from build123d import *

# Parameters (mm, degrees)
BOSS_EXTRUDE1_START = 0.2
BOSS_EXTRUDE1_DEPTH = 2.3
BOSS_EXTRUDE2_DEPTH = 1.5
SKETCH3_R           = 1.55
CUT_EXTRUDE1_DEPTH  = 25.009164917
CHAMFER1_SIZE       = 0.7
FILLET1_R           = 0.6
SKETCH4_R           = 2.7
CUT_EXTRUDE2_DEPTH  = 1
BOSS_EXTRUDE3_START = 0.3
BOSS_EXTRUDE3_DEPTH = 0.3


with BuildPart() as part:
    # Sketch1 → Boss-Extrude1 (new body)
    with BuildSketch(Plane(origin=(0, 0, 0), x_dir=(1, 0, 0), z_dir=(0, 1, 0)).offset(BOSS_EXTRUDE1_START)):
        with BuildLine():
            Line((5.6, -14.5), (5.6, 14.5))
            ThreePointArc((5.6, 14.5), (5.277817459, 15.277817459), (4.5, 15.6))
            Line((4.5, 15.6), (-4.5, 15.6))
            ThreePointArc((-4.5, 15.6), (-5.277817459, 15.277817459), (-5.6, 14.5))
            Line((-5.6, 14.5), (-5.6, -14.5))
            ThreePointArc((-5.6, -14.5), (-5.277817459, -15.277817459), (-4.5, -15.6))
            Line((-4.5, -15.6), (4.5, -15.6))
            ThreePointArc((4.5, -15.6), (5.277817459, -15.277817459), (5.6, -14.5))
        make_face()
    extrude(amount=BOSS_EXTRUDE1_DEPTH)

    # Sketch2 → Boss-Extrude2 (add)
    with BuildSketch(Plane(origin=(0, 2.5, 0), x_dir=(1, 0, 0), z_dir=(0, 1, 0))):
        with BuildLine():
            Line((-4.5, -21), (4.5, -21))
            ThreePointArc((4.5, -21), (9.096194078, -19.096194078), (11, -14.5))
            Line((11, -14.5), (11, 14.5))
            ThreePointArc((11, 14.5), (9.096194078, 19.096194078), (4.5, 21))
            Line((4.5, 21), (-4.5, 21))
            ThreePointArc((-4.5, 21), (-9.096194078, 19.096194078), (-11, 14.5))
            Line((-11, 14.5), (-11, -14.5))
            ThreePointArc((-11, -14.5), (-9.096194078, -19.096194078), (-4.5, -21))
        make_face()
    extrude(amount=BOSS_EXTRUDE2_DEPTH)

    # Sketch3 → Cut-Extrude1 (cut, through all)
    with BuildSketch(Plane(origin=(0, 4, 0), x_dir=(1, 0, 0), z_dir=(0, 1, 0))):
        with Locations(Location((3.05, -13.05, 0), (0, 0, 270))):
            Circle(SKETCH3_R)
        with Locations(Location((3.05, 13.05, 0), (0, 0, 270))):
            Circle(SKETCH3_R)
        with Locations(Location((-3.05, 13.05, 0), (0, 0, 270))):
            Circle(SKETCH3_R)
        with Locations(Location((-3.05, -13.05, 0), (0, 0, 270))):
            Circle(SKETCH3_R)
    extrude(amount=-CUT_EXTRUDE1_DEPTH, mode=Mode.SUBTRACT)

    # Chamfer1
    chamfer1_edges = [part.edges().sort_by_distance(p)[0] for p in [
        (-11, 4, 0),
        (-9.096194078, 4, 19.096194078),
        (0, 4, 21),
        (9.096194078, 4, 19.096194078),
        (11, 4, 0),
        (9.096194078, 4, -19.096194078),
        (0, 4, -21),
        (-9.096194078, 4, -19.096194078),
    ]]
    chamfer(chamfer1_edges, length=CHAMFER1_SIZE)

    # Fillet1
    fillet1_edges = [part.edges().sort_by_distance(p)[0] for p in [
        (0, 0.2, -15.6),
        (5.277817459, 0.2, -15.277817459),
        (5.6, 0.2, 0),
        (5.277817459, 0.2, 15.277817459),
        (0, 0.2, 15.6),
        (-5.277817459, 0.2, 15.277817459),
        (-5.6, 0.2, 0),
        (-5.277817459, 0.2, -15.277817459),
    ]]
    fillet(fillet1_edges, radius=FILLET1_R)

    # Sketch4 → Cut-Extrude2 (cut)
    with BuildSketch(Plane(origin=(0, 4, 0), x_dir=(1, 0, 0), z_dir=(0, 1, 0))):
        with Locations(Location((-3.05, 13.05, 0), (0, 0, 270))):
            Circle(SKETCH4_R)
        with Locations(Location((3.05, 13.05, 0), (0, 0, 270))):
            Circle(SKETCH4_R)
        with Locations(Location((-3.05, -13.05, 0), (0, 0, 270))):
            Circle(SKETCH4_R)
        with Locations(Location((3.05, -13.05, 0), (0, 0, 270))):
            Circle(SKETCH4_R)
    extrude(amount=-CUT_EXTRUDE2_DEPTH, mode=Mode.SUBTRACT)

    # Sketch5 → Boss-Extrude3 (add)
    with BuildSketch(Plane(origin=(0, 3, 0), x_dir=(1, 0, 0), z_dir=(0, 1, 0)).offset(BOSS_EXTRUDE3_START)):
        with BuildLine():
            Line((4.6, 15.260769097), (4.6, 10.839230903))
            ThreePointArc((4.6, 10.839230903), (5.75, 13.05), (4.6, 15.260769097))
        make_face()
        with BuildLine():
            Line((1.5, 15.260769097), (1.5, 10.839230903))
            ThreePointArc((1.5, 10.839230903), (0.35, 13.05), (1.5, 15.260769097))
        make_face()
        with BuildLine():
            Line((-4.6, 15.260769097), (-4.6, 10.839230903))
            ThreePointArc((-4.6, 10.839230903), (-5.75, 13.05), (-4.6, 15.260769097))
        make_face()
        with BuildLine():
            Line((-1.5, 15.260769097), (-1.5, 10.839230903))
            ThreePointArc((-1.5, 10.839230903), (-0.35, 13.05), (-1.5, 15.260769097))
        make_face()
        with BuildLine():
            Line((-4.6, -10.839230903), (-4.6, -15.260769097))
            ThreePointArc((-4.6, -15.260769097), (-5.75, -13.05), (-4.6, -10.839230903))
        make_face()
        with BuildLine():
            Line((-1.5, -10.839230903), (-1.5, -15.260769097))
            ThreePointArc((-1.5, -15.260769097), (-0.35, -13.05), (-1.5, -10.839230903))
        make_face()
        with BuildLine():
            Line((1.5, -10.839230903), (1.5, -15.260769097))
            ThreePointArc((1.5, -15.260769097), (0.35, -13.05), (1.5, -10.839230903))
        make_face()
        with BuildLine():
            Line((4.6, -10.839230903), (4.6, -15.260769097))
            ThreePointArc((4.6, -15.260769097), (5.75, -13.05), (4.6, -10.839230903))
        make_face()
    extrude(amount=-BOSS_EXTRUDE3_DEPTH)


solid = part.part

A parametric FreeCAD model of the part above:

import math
import FreeCAD as App
import Part
import Sketcher
from FreeCAD import Vector
Q = App.Units.Quantity


def edges_at(feature, points):
    """Names of the edges that pass closest to the given points."""
    edges = feature.Shape.Edges
    near = lambda p: min(range(len(edges)), key=lambda i: edges[i].distToShape(Part.Vertex(*p))[0])
    return sorted({f"Edge{near(p) + 1}" for p in points})

doc = App.newDocument("Part")
params = doc.addObject("Spreadsheet::Sheet", "Params")
for row, (alias, value) in enumerate([
    ("sketch1_radius", "1.1 mm"),
    ("sketch1_width", "9 mm"),
    ("sketch1_height", "29 mm"),
    ("pad1_length", "2.3 mm"),
    ("sketch2_radius", "6.5 mm"),
    ("sketch2_width", "9 mm"),
    ("sketch2_height", "29 mm"),
    ("pad2_length", "1.5 mm"),
    ("sketch3_diameter", "3.1 mm"),
    ("chamfer_size", "0.7 mm"),
    ("fillet_radius", "0.6 mm"),
    ("sketch4_diameter", "5.4 mm"),
    ("pocket2_length", "1 mm"),
    ("sketch5_radius", "2.7 mm"),
    ("pad3_length", "0.3 mm"),
], start=1):
    params.set(f"A{row}", alias)
    params.set(f"B{row}", "=" + value)
    params.setAlias(f"B{row}", alias)

body = doc.addObject("PartDesign::Body", "Body")

# Sketch on XZ plane
sketch1 = body.newObject("Sketcher::SketchObject", "Sketch")
sketch1.AttachmentSupport = (doc.getObject("XZ_Plane"), [""])
sketch1.MapMode = "FlatFace"
sketch1.AttachmentOffset = App.Placement(Vector(0, 0, -0.2), App.Rotation())
sketch1.addGeometry(Part.LineSegment(Vector(5.6, 14.5, 0), Vector(5.6, -14.5, 0)), False)
sketch1.addGeometry(Part.ArcOfCircle(Part.Circle(Vector(4.5, -14.5, 0), Vector(0, 0, 1), 1.1), math.radians(-90), math.radians(0)), False)
sketch1.addGeometry(Part.LineSegment(Vector(4.5, -15.6, 0), Vector(-4.5, -15.6, 0)), False)
sketch1.addGeometry(Part.ArcOfCircle(Part.Circle(Vector(-4.5, -14.5, 0), Vector(0, 0, 1), 1.1), math.radians(-180), math.radians(-90)), False)
sketch1.addGeometry(Part.LineSegment(Vector(-5.6, -14.5, 0), Vector(-5.6, 14.5, 0)), False)
sketch1.addGeometry(Part.ArcOfCircle(Part.Circle(Vector(-4.5, 14.5, 0), Vector(0, 0, 1), 1.1), math.radians(90), math.radians(180)), False)
sketch1.addGeometry(Part.LineSegment(Vector(-4.5, 15.6, 0), Vector(4.5, 15.6, 0)), False)
sketch1.addGeometry(Part.ArcOfCircle(Part.Circle(Vector(4.5, 14.5, 0), Vector(0, 0, 1), 1.1), math.radians(0), math.radians(90)), False)
sketch1.addConstraint(Sketcher.Constraint("Tangent", 0, 2, 1, 2))
sketch1.addConstraint(Sketcher.Constraint("Tangent", 1, 1, 2, 1))
sketch1.addConstraint(Sketcher.Constraint("Tangent", 2, 2, 3, 2))
sketch1.addConstraint(Sketcher.Constraint("Tangent", 3, 1, 4, 1))
sketch1.addConstraint(Sketcher.Constraint("Tangent", 4, 2, 5, 2))
sketch1.addConstraint(Sketcher.Constraint("Tangent", 5, 1, 6, 1))
sketch1.addConstraint(Sketcher.Constraint("Tangent", 6, 2, 7, 2))
sketch1.addConstraint(Sketcher.Constraint("Tangent", 7, 1, 0, 1))
sketch1.addConstraint(Sketcher.Constraint("Vertical", 0))
sketch1.addConstraint(Sketcher.Constraint("Horizontal", 2))
sketch1.addConstraint(Sketcher.Constraint("Vertical", 4))
sketch1.addConstraint(Sketcher.Constraint("Horizontal", 6))
sketch1.addConstraint(Sketcher.Constraint("Equal", 1, 3))
sketch1.addConstraint(Sketcher.Constraint("Equal", 3, 5))
sketch1.addConstraint(Sketcher.Constraint("Equal", 5, 7))
sketch1.addConstraint(Sketcher.Constraint("Symmetric", 1, 3, 5, 3, -1, 1))
sketch1.addConstraint(Sketcher.Constraint("Radius", 1, Q("1.1 mm")))
sketch1.addConstraint(Sketcher.Constraint("DistanceX", 2, 2, 2, 1, Q("9 mm")))
sketch1.addConstraint(Sketcher.Constraint("DistanceY", 0, 2, 0, 1, Q("29 mm")))
sketch1.setExpression("Constraints[16]", "Params.sketch1_radius")
sketch1.setExpression("Constraints[17]", "Params.sketch1_width")
sketch1.setExpression("Constraints[18]", "Params.sketch1_height")
pad1 = body.newObject("PartDesign::Pad", "Pad")
pad1.Profile = sketch1
pad1.setExpression("Length", "Params.pad1_length")
pad1.Reversed = True

# Sketch on XZ plane
sketch2 = body.newObject("Sketcher::SketchObject", "Sketch001")
sketch2.AttachmentSupport = (doc.getObject("XZ_Plane"), [""])
sketch2.MapMode = "FlatFace"
sketch2.AttachmentOffset = App.Placement(Vector(0, 0, -2.5), App.Rotation())
sketch2.addGeometry(Part.LineSegment(Vector(-4, 21, 0), Vector(4, 21, 0)), False)
sketch2.addGeometry(Part.ArcOfCircle(Part.Circle(Vector(5, 15, 0), Vector(0, 0, 1), 6), math.radians(0), math.radians(90)), False)
sketch2.addGeometry(Part.LineSegment(Vector(11, 14, 0), Vector(11, -14, 0)), False)
sketch2.addGeometry(Part.ArcOfCircle(Part.Circle(Vector(5, -15, 0), Vector(0, 0, 1), 6), math.radians(-90), math.radians(0)), False)
sketch2.addGeometry(Part.LineSegment(Vector(4, -21, 0), Vector(-4, -21, 0)), False)
sketch2.addGeometry(Part.ArcOfCircle(Part.Circle(Vector(-5, -15, 0), Vector(0, 0, 1), 6), math.radians(180), math.radians(270)), False)
sketch2.addGeometry(Part.LineSegment(Vector(-11, -14, 0), Vector(-11, 14, 0)), False)
sketch2.addGeometry(Part.ArcOfCircle(Part.Circle(Vector(-5, 15, 0), Vector(0, 0, 1), 6), math.radians(90), math.radians(180)), False)
sketch2.addConstraint(Sketcher.Constraint("Tangent", 0, 2, 1, 2))
sketch2.addConstraint(Sketcher.Constraint("Tangent", 1, 1, 2, 1))
sketch2.addConstraint(Sketcher.Constraint("Tangent", 2, 2, 3, 2))
sketch2.addConstraint(Sketcher.Constraint("Tangent", 3, 1, 4, 1))
sketch2.addConstraint(Sketcher.Constraint("Tangent", 4, 2, 5, 2))
sketch2.addConstraint(Sketcher.Constraint("Tangent", 5, 1, 6, 1))
sketch2.addConstraint(Sketcher.Constraint("Tangent", 6, 2, 7, 2))
sketch2.addConstraint(Sketcher.Constraint("Tangent", 7, 1, 0, 1))
sketch2.addConstraint(Sketcher.Constraint("Horizontal", 0))
sketch2.addConstraint(Sketcher.Constraint("Vertical", 2))
sketch2.addConstraint(Sketcher.Constraint("Horizontal", 4))
sketch2.addConstraint(Sketcher.Constraint("Vertical", 6))
sketch2.addConstraint(Sketcher.Constraint("Equal", 1, 3))
sketch2.addConstraint(Sketcher.Constraint("Equal", 3, 5))
sketch2.addConstraint(Sketcher.Constraint("Equal", 5, 7))
sketch2.addConstraint(Sketcher.Constraint("Symmetric", 1, 3, 5, 3, -1, 1))
sketch2.addConstraint(Sketcher.Constraint("Radius", 1, Q("6.5 mm")))
sketch2.addConstraint(Sketcher.Constraint("DistanceX", 0, 1, 0, 2, Q("9 mm")))
sketch2.addConstraint(Sketcher.Constraint("DistanceY", 2, 2, 2, 1, Q("29 mm")))
sketch2.setExpression("Constraints[16]", "Params.sketch2_radius")
sketch2.setExpression("Constraints[17]", "Params.sketch2_width")
sketch2.setExpression("Constraints[18]", "Params.sketch2_height")
pad2 = body.newObject("PartDesign::Pad", "Pad001")
pad2.Profile = sketch2
pad2.setExpression("Length", "Params.pad2_length")
pad2.Reversed = True

# Sketch on XZ plane
sketch3 = body.newObject("Sketcher::SketchObject", "Sketch002")
sketch3.AttachmentSupport = (doc.getObject("XZ_Plane"), [""])
sketch3.MapMode = "FlatFace"
sketch3.AttachmentOffset = App.Placement(Vector(0, 0, -4), App.Rotation())
sketch3.addGeometry(Part.Circle(Vector(3, 13.1, 0), Vector(0, 0, 1), 1.6), False)
sketch3.addGeometry(Part.Circle(Vector(3, -13.1, 0), Vector(0, 0, 1), 1.6), False)
sketch3.addGeometry(Part.Circle(Vector(-3, -13.1, 0), Vector(0, 0, 1), 1.6), False)
sketch3.addGeometry(Part.Circle(Vector(-3, 13.1, 0), Vector(0, 0, 1), 1.6), False)
sketch3.addConstraint(Sketcher.Constraint("Equal", 0, 1))
sketch3.addConstraint(Sketcher.Constraint("Equal", 1, 2))
sketch3.addConstraint(Sketcher.Constraint("Equal", 2, 3))
sketch3.addConstraint(Sketcher.Constraint("Symmetric", 0, 3, 2, 3, -1, 1))
sketch3.addConstraint(Sketcher.Constraint("Symmetric", 1, 3, 3, 3, -1, 1))
sketch3.addConstraint(Sketcher.Constraint("Symmetric", 1, 3, 2, 3, -2))
sketch3.addConstraint(Sketcher.Constraint("Diameter", 0, Q("3.1 mm")))
sketch3.addConstraint(Sketcher.Constraint("DistanceY", 1, 3, 0, 3, Q("26.1 mm")))
sketch3.addConstraint(Sketcher.Constraint("DistanceX", 2, 3, 1, 3, Q("6.1 mm")))
sketch3.setExpression("Constraints[6]", "Params.sketch3_diameter")
pocket1 = body.newObject("PartDesign::Pocket", "Pocket")
pocket1.Profile = sketch3
pocket1.Type = "ThroughAll"
pocket1.Reversed = True
doc.recompute()

chamfer = body.newObject("PartDesign::Chamfer", "Chamfer")
chamfer.Base = (pocket1, edges_at(pocket1, [
    (-11, 4, 0),
    (-9.096, 4, 19.096),
    (0, 4, 21),
    (9.096, 4, 19.096),
    (11, 4, 0),
    (9.096, 4, -19.096),
    (0, 4, -21),
    (-9.096, 4, -19.096),
]))
chamfer.setExpression("Size", "Params.chamfer_size")
doc.recompute()

fillet = body.newObject("PartDesign::Fillet", "Fillet")
fillet.Base = (chamfer, edges_at(chamfer, [
    (0, 0.2, -15.6),
    (5.278, 0.2, -15.278),
    (5.6, 0.2, 0),
    (5.278, 0.2, 15.278),
    (0, 0.2, 15.6),
    (-5.278, 0.2, 15.278),
    (-5.6, 0.2, 0),
    (-5.278, 0.2, -15.278),
]))
fillet.setExpression("Radius", "Params.fillet_radius")

# Sketch on XZ plane
sketch4 = body.newObject("Sketcher::SketchObject", "Sketch003")
sketch4.AttachmentSupport = (doc.getObject("XZ_Plane"), [""])
sketch4.MapMode = "FlatFace"
sketch4.AttachmentOffset = App.Placement(Vector(0, 0, -4), App.Rotation())
sketch4.addGeometry(Part.Circle(Vector(-3, -13.1, 0), Vector(0, 0, 1), 2.7), False)
sketch4.addGeometry(Part.Circle(Vector(3, -13.1, 0), Vector(0, 0, 1), 2.7), False)
sketch4.addGeometry(Part.Circle(Vector(-3, 13.1, 0), Vector(0, 0, 1), 2.7), False)
sketch4.addGeometry(Part.Circle(Vector(3, 13.1, 0), Vector(0, 0, 1), 2.7), False)
sketch4.addConstraint(Sketcher.Constraint("Equal", 0, 1))
sketch4.addConstraint(Sketcher.Constraint("Equal", 1, 2))
sketch4.addConstraint(Sketcher.Constraint("Equal", 2, 3))
sketch4.addConstraint(Sketcher.Constraint("Symmetric", 1, 3, 2, 3, -1, 1))
sketch4.addConstraint(Sketcher.Constraint("Symmetric", 0, 3, 3, 3, -1, 1))
sketch4.addConstraint(Sketcher.Constraint("Symmetric", 0, 3, 1, 3, -2))
sketch4.addConstraint(Sketcher.Constraint("Diameter", 0, Q("5.4 mm")))
sketch4.addConstraint(Sketcher.Constraint("DistanceX", 0, 3, 1, 3, Q("6.1 mm")))
sketch4.addConstraint(Sketcher.Constraint("DistanceY", 0, 3, 2, 3, Q("26.1 mm")))
sketch4.setExpression("Constraints[6]", "Params.sketch4_diameter")
pocket2 = body.newObject("PartDesign::Pocket", "Pocket001")
pocket2.Profile = sketch4
pocket2.setExpression("Length", "Params.pocket2_length")
pocket2.Reversed = True

# Sketch on XZ plane
sketch5 = body.newObject("Sketcher::SketchObject", "Sketch004")
sketch5.AttachmentSupport = (doc.getObject("XZ_Plane"), [""])
sketch5.MapMode = "FlatFace"
sketch5.AttachmentOffset = App.Placement(Vector(0, 0, -3.3), App.Rotation())
sketch5.addGeometry(Part.LineSegment(Vector(4.6, -15.3, 0), Vector(4.6, -10.8, 0)), False)
sketch5.addGeometry(Part.ArcOfCircle(Part.Circle(Vector(3, -13.1, 0), Vector(0, 0, 1), 2.7), math.radians(-55), math.radians(55)), False)
sketch5.addGeometry(Part.LineSegment(Vector(1.5, -10.8, 0), Vector(1.5, -15.3, 0)), False)
sketch5.addGeometry(Part.ArcOfCircle(Part.Circle(Vector(3, -13.1, 0), Vector(0, 0, 1), 2.7), math.radians(125), math.radians(235)), False)
sketch5.addGeometry(Part.LineSegment(Vector(-4.6, -10.8, 0), Vector(-4.6, -15.3, 0)), False)
sketch5.addGeometry(Part.ArcOfCircle(Part.Circle(Vector(-3, -13.1, 0), Vector(0, 0, 1), 2.7), math.radians(125), math.radians(235)), False)
sketch5.addGeometry(Part.LineSegment(Vector(-1.5, -15.3, 0), Vector(-1.5, -10.8, 0)), False)
sketch5.addGeometry(Part.ArcOfCircle(Part.Circle(Vector(-3, -13.1, 0), Vector(0, 0, 1), 2.7), math.radians(-55), math.radians(55)), False)
sketch5.addGeometry(Part.LineSegment(Vector(-4.6, 15.3, 0), Vector(-4.6, 10.8, 0)), False)
sketch5.addGeometry(Part.ArcOfCircle(Part.Circle(Vector(-3, 13.1, 0), Vector(0, 0, 1), 2.7), math.radians(125), math.radians(235)), False)
sketch5.addGeometry(Part.LineSegment(Vector(-1.5, 10.8, 0), Vector(-1.5, 15.3, 0)), False)
sketch5.addGeometry(Part.ArcOfCircle(Part.Circle(Vector(-3, 13.1, 0), Vector(0, 0, 1), 2.7), math.radians(-55), math.radians(55)), False)
sketch5.addGeometry(Part.LineSegment(Vector(1.5, 15.3, 0), Vector(1.5, 10.8, 0)), False)
sketch5.addGeometry(Part.ArcOfCircle(Part.Circle(Vector(3, 13.1, 0), Vector(0, 0, 1), 2.7), math.radians(125), math.radians(235)), False)
sketch5.addGeometry(Part.LineSegment(Vector(4.6, 10.8, 0), Vector(4.6, 15.3, 0)), False)
sketch5.addGeometry(Part.ArcOfCircle(Part.Circle(Vector(3, 13.1, 0), Vector(0, 0, 1), 2.7), math.radians(-55), math.radians(55)), False)
sketch5.addConstraint(Sketcher.Constraint("Coincident", 0, 1, 1, 1))
sketch5.addConstraint(Sketcher.Constraint("Coincident", 1, 2, 0, 2))
sketch5.addConstraint(Sketcher.Constraint("Coincident", 2, 1, 3, 1))
sketch5.addConstraint(Sketcher.Constraint("Coincident", 3, 2, 2, 2))
sketch5.addConstraint(Sketcher.Constraint("Coincident", 4, 1, 5, 1))
sketch5.addConstraint(Sketcher.Constraint("Coincident", 5, 2, 4, 2))
sketch5.addConstraint(Sketcher.Constraint("Coincident", 6, 1, 7, 1))
sketch5.addConstraint(Sketcher.Constraint("Coincident", 7, 2, 6, 2))
sketch5.addConstraint(Sketcher.Constraint("Coincident", 8, 1, 9, 1))
sketch5.addConstraint(Sketcher.Constraint("Coincident", 9, 2, 8, 2))
sketch5.addConstraint(Sketcher.Constraint("Coincident", 10, 1, 11, 1))
sketch5.addConstraint(Sketcher.Constraint("Coincident", 11, 2, 10, 2))
sketch5.addConstraint(Sketcher.Constraint("Coincident", 12, 1, 13, 1))
sketch5.addConstraint(Sketcher.Constraint("Coincident", 13, 2, 12, 2))
sketch5.addConstraint(Sketcher.Constraint("Coincident", 14, 1, 15, 1))
sketch5.addConstraint(Sketcher.Constraint("Coincident", 15, 2, 14, 2))
sketch5.addConstraint(Sketcher.Constraint("Vertical", 0))
sketch5.addConstraint(Sketcher.Constraint("Vertical", 2))
sketch5.addConstraint(Sketcher.Constraint("Vertical", 4))
sketch5.addConstraint(Sketcher.Constraint("Vertical", 6))
sketch5.addConstraint(Sketcher.Constraint("Vertical", 8))
sketch5.addConstraint(Sketcher.Constraint("Vertical", 10))
sketch5.addConstraint(Sketcher.Constraint("Vertical", 12))
sketch5.addConstraint(Sketcher.Constraint("Vertical", 14))
sketch5.addConstraint(Sketcher.Constraint("Coincident", 3, 3, 1, 3))
sketch5.addConstraint(Sketcher.Constraint("Coincident", 7, 3, 5, 3))
sketch5.addConstraint(Sketcher.Constraint("Coincident", 11, 3, 9, 3))
sketch5.addConstraint(Sketcher.Constraint("Coincident", 15, 3, 13, 3))
sketch5.addConstraint(Sketcher.Constraint("Equal", 1, 3))
sketch5.addConstraint(Sketcher.Constraint("Equal", 3, 5))
sketch5.addConstraint(Sketcher.Constraint("Equal", 5, 7))
sketch5.addConstraint(Sketcher.Constraint("Equal", 7, 9))
sketch5.addConstraint(Sketcher.Constraint("Equal", 9, 11))
sketch5.addConstraint(Sketcher.Constraint("Equal", 11, 13))
sketch5.addConstraint(Sketcher.Constraint("Equal", 13, 15))
sketch5.addConstraint(Sketcher.Constraint("Symmetric", 1, 3, 9, 3, -1, 1))
sketch5.addConstraint(Sketcher.Constraint("Symmetric", 5, 3, 13, 3, -1, 1))
sketch5.addConstraint(Sketcher.Constraint("Symmetric", 1, 3, 5, 3, -2))
sketch5.addConstraint(Sketcher.Constraint("Horizontal", 1, 2, 2, 1))
sketch5.addConstraint(Sketcher.Constraint("Horizontal", 2, 1, 4, 1))
sketch5.addConstraint(Sketcher.Constraint("Horizontal", 5, 2, 6, 1))
sketch5.addConstraint(Sketcher.Constraint("Horizontal", 9, 2, 10, 1))
sketch5.addConstraint(Sketcher.Constraint("Horizontal", 11, 2, 12, 1))
sketch5.addConstraint(Sketcher.Constraint("Horizontal", 13, 2, 14, 1))
sketch5.addConstraint(Sketcher.Constraint("Vertical", 5, 2, 8, 1))
sketch5.addConstraint(Sketcher.Constraint("Radius", 1, Q("2.7 mm")))
sketch5.addConstraint(Sketcher.Constraint("DistanceX", 6, 1, 3, 2, Q("3 mm")))
sketch5.addConstraint(Sketcher.Constraint("DistanceX", -1, 1, 0, 1, Q("4.6 mm")))
sketch5.addConstraint(Sketcher.Constraint("DistanceY", 5, 3, 9, 3, Q("26.1 mm")))
sketch5.setExpression("Constraints[45]", "Params.sketch5_radius")
pad3 = body.newObject("PartDesign::Pad", "Pad002")
pad3.Profile = sketch5
pad3.setExpression("Length", "Params.pad3_length")

doc.recompute()
